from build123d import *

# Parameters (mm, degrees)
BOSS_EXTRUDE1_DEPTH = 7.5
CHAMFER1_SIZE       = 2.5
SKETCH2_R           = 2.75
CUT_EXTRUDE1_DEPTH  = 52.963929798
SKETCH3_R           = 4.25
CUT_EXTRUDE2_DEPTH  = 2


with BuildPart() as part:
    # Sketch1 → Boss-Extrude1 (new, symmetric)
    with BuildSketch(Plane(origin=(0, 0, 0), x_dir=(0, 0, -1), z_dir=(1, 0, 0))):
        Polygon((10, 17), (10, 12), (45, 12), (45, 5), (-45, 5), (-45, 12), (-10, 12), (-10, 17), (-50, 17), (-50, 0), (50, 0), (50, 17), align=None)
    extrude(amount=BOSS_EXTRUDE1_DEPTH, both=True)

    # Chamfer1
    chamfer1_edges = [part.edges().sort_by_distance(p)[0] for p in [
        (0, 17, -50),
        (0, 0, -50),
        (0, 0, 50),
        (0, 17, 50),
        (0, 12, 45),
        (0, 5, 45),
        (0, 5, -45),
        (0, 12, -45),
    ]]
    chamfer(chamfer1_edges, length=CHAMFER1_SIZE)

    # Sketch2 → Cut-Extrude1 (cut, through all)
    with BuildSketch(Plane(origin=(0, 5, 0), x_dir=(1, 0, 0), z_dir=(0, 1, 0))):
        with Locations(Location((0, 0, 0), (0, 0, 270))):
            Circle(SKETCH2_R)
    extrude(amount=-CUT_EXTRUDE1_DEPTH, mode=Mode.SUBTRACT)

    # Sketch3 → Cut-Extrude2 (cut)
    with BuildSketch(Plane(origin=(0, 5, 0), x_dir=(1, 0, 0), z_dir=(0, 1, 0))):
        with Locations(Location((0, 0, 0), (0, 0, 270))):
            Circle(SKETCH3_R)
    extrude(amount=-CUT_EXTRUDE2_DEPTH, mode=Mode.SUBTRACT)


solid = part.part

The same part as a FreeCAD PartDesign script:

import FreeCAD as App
import Part
import Sketcher
from FreeCAD import Vector
Q = App.Units.Quantity


def edges_at(feature, points):
    """Names of the edges that pass closest to the given points."""
    edges = feature.Shape.Edges
    near = lambda p: min(range(len(edges)), key=lambda i: edges[i].distToShape(Part.Vertex(*p))[0])
    return sorted({f"Edge{near(p) + 1}" for p in points})


def add_polygon(sketch, points):
    """Adds a closed chain of lines whose ends are joined by coincident constraints."""
    first, n = sketch.GeometryCount, len(points)
    for a, b in zip(points, points[1:] + points[:1]):
        sketch.addGeometry(Part.LineSegment(App.Vector(*a, 0), App.Vector(*b, 0)), False)
    for i in range(n):
        sketch.addConstraint(Sketcher.Constraint("Coincident", first + i, 2, first + (i + 1) % n, 1))

doc = App.newDocument("Part")
body = doc.addObject("PartDesign::Body", "Body")

# Sketch on YZ plane
sketch1 = body.newObject("Sketcher::SketchObject", "Sketch")
sketch1.AttachmentSupport = (doc.getObject("YZ_Plane"), [""])
sketch1.MapMode = "FlatFace"
add_polygon(sketch1, [(17, -10), (12, -10), (12, -45), (5, -45), (5, 45), (12, 45), (12, 10), (17, 10), (17, 50), (0, 50), (0, -50), (17, -50)])  # lines 0-11
sketch1.addConstraint(Sketcher.Constraint("Horizontal", 0))
sketch1.addConstraint(Sketcher.Constraint("Vertical", 1))
sketch1.addConstraint(Sketcher.Constraint("Horizontal", 2))
sketch1.addConstraint(Sketcher.Constraint("Vertical", 3))
sketch1.addConstraint(Sketcher.Constraint("Horizontal", 4))
sketch1.addConstraint(Sketcher.Constraint("Vertical", 5))
sketch1.addConstraint(Sketcher.Constraint("Horizontal", 6))
sketch1.addConstraint(Sketcher.Constraint("Vertical", 7))
sketch1.addConstraint(Sketcher.Constraint("Horizontal", 8))
sketch1.addConstraint(Sketcher.Constraint("Vertical", 9))
sketch1.addConstraint(Sketcher.Constraint("Horizontal", 10))
sketch1.addConstraint(Sketcher.Constraint("Vertical", 11))
sketch1.addConstraint(Sketcher.Constraint("Symmetric", 8, 2, 9, 2, -1, 1))
sketch1.addConstraint(Sketcher.Constraint("Symmetric", 1, 2, 4, 2, -1))
sketch1.addConstraint(Sketcher.Constraint("Symmetric", 6, 2, 11, 2, -1))
sketch1.addConstraint(Sketcher.Constraint("DistanceX", 0, 2, 0, 1, Q("5 mm")))
sketch1.addConstraint(Sketcher.Constraint("DistanceX", 2, 2, 2, 1, Q("7 mm")))
sketch1.addConstraint(Sketcher.Constraint("DistanceX", 8, 2, 8, 1, Q("17 mm")))
sketch1.addConstraint(Sketcher.Constraint("DistanceY", 1, 2, 1, 1, Q("35 mm")))
sketch1.addConstraint(Sketcher.Constraint("DistanceY", 3, 1, 3, 2, Q("90 mm")))
sketch1.addConstraint(Sketcher.Constraint("DistanceY", 7, 1, 7, 2, Q("40 mm")))
pad1 = body.newObject("PartDesign::Pad", "Pad")
pad1.Profile = sketch1
pad1.Length = 15
pad1.Midplane = True
doc.recompute()

chamfer = body.newObject("PartDesign::Chamfer", "Chamfer")
chamfer.Base = (pad1, edges_at(pad1, [
    (0, 17, -50),
    (0, 0, -50),
    (0, 0, 50),
    (0, 17, 50),
    (0, 12, 45),
    (0, 5, 45),
    (0, 5, -45),
    (0, 12, -45),
]))
chamfer.Size = 2.5

# Sketch on XZ plane
sketch2 = body.newObject("Sketcher::SketchObject", "Sketch001")
sketch2.AttachmentSupport = (doc.getObject("XZ_Plane"), [""])
sketch2.MapMode = "FlatFace"
sketch2.AttachmentOffset = App.Placement(Vector(0, 0, -5), App.Rotation())
sketch2.addGeometry(Part.Circle(Vector(0, 0, 0), Vector(0, 0, 1), 2.75), False)
sketch2.addConstraint(Sketcher.Constraint("Coincident", 0, 3, -1, 1))
sketch2.addConstraint(Sketcher.Constraint("Diameter", 0, Q("5.5 mm")))
pocket1 = body.newObject("PartDesign::Pocket", "Pocket")
pocket1.Profile = sketch2
pocket1.Type = "ThroughAll"
pocket1.Reversed = True

# Sketch on XZ plane
sketch3 = body.newObject("Sketcher::SketchObject", "Sketch002")
sketch3.AttachmentSupport = (doc.getObject("XZ_Plane"), [""])
sketch3.MapMode = "FlatFace"
sketch3.AttachmentOffset = App.Placement(Vector(0, 0, -5), App.Rotation())
sketch3.addGeometry(Part.Circle(Vector(0, 0, 0), Vector(0, 0, 1), 4.25), False)
sketch3.addConstraint(Sketcher.Constraint("Coincident", 0, 3, -1, 1))
sketch3.addConstraint(Sketcher.Constraint("Diameter", 0, Q("8.5 mm")))
pocket2 = body.newObject("PartDesign::Pocket", "Pocket001")
pocket2.Profile = sketch3
pocket2.Length = 2
pocket2.Reversed = True

doc.recompute()
